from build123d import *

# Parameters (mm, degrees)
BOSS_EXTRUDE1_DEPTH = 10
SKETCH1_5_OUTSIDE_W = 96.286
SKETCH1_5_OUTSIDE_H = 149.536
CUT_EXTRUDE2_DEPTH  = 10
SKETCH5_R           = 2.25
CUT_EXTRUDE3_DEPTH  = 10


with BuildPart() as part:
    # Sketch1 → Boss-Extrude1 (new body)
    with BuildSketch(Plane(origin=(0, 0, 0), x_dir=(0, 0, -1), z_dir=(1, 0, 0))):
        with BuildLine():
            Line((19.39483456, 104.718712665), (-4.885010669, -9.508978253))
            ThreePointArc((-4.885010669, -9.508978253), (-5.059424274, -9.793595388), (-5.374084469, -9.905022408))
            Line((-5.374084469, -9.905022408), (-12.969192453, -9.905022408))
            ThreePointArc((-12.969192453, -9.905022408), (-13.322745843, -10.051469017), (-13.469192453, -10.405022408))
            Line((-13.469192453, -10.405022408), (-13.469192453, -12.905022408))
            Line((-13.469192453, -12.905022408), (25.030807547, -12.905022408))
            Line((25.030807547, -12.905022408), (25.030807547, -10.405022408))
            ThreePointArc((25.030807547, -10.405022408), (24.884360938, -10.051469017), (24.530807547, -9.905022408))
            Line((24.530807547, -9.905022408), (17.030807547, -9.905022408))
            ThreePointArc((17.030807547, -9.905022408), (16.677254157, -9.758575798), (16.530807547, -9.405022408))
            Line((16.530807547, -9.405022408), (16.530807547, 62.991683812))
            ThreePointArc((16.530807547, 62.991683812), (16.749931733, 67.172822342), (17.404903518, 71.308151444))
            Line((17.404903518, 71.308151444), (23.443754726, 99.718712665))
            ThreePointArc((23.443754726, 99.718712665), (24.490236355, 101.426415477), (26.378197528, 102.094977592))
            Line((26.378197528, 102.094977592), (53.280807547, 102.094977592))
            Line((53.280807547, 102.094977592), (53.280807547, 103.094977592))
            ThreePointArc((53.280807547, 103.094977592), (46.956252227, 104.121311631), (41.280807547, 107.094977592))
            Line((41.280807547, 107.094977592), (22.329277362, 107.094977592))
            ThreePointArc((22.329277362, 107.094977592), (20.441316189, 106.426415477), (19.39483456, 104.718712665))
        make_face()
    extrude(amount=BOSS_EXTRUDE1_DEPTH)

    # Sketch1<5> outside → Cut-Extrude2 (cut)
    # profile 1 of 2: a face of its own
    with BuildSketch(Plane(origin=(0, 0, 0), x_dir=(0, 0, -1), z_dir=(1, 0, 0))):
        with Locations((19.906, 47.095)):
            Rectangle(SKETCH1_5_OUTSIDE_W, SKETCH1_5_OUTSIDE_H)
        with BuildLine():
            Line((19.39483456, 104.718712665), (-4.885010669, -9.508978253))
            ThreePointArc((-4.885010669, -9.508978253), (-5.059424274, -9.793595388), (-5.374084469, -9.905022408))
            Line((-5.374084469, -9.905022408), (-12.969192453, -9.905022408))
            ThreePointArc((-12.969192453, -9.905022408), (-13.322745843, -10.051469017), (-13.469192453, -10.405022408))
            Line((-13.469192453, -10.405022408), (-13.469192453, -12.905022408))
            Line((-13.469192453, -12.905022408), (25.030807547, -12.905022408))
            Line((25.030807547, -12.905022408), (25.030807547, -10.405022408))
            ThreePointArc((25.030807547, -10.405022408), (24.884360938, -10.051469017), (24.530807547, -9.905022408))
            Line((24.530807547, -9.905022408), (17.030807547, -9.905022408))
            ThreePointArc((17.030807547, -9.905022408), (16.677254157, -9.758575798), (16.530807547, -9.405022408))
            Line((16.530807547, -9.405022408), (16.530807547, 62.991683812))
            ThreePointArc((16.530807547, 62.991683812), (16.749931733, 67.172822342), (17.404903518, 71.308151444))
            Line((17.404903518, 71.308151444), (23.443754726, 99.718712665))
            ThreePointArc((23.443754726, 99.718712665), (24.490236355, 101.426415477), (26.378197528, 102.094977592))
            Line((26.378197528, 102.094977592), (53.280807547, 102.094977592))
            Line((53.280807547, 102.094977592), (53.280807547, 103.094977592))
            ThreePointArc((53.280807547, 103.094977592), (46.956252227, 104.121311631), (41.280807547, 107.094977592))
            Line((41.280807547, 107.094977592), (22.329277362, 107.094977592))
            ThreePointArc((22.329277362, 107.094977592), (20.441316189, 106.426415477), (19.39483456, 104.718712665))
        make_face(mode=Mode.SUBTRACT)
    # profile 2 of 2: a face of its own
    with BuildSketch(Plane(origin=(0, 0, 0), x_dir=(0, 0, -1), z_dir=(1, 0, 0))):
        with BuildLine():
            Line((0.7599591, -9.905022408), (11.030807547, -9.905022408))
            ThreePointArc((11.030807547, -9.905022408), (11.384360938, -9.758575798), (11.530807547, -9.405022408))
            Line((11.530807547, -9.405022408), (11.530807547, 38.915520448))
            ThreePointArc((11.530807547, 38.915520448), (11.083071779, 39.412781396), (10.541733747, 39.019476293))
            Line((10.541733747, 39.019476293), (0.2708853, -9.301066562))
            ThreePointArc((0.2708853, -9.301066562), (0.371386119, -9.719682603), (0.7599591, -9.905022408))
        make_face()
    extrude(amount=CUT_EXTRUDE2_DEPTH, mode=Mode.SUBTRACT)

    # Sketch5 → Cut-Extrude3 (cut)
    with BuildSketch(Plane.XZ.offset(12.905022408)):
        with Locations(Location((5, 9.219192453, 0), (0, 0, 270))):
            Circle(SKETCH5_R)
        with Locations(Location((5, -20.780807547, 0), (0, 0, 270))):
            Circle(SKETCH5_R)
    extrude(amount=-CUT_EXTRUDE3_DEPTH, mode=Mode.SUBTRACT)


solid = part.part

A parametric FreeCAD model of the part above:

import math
import FreeCAD as App
import Part
import Sketcher
from FreeCAD import Vector
Q = App.Units.Quantity


def add_polygon(sketch, points):
    """Adds a closed chain of lines whose ends are joined by coincident constraints."""
    first, n = sketch.GeometryCount, len(points)
    for a, b in zip(points, points[1:] + points[:1]):
        sketch.addGeometry(Part.LineSegment(App.Vector(*a, 0), App.Vector(*b, 0)), False)
    for i in range(n):
        sketch.addConstraint(Sketcher.Constraint("Coincident", first + i, 2, first + (i + 1) % n, 1))

doc = App.newDocument("Part")
params = doc.addObject("Spreadsheet::Sheet", "Params")
for row, (alias, value) in enumerate([
    ("sketch1_radius", "40 mm"),
    ("sketch1_radius2", "3 mm"),
    ("sketch1_radius3", "20 mm"),
    ("sketch1_radius4", "0.5 mm"),
    ("sketch1_width", "1 mm"),
    ("pad1_length", "10 mm"),
    ("sketch2_radius", "3 mm"),
    ("sketch2_radius2", "20 mm"),
    ("sketch2_radius3", "40 mm"),
    ("sketch2_radius4", "0.5 mm"),
    ("sketch2_width", "1 mm"),
    ("pocket1_length", "10 mm"),
    ("sketch3_diameter", "4.5 mm"),
    ("pocket2_length", "10 mm"),
], start=1):
    params.set(f"A{row}", alias)
    params.set(f"B{row}", "=" + value)
    params.setAlias(f"B{row}", alias)

body = doc.addObject("PartDesign::Body", "Body")

sketch1 = body.newObject("Sketcher::SketchObject", "Sketch")
sketch1.AttachmentSupport = (doc.getObject("YZ_Plane"), [""])
sketch1.MapMode = "FlatFace"
sketch1.addGeometry(Part.LineSegment(Vector(104.718713, -19.394835, 0), Vector(-9.508978, 4.885011, 0)), False)
sketch1.addGeometry(Part.ArcOfCircle(Part.Circle(Vector(-9.405022, 5.374084, 0), Vector(0, 0, 1), 0.5), math.radians(-180), math.radians(-102)), False)
sketch1.addGeometry(Part.LineSegment(Vector(-9.905022, 5.374084, 0), Vector(-9.905022, 12.969192, 0)), False)
sketch1.addGeometry(Part.ArcOfCircle(Part.Circle(Vector(-10.405022, 12.969192, 0), Vector(0, 0, 1), 0.5), math.radians(0), math.radians(90)), False)
sketch1.addGeometry(Part.LineSegment(Vector(-10.405022, 13.469192, 0), Vector(-12.905022, 13.469192, 0)), False)
sketch1.addGeometry(Part.LineSegment(Vector(-12.905022, 13.469192, 0), Vector(-12.905022, -25.030808, 0)), False)
sketch1.addGeometry(Part.LineSegment(Vector(-12.905022, -25.030808, 0), Vector(-10.405022, -25.030808, 0)), False)
sketch1.addGeometry(Part.ArcOfCircle(Part.Circle(Vector(-10.405022, -24.530808, 0), Vector(0, 0, 1), 0.5), math.radians(-90), math.radians(0)), False)
sketch1.addGeometry(Part.LineSegment(Vector(-9.905022, -24.530808, 0), Vector(-9.905022, -17.030808, 0)), False)
sketch1.addGeometry(Part.ArcOfCircle(Part.Circle(Vector(-9.405022, -17.030808, 0), Vector(0, 0, 1), 0.5), math.radians(90), math.radians(180)), False)
sketch1.addGeometry(Part.LineSegment(Vector(-9.405022, -16.530808, 0), Vector(62.991684, -16.530808, 0)), False)
sketch1.addGeometry(Part.ArcOfCircle(Part.Circle(Vector(62.991684, -56.530808, 0), Vector(0, 0, 1), 40), math.radians(78), math.radians(90)), False)
sketch1.addGeometry(Part.LineSegment(Vector(71.308151, -17.404904, 0), Vector(99.718713, -23.443755, 0)), False)
sketch1.addGeometry(Part.ArcOfCircle(Part.Circle(Vector(99.094978, -26.378198, 0), Vector(0, 0, 1), 3), math.radians(0), math.radians(78)), False)
sketch1.addGeometry(Part.LineSegment(Vector(102.094978, -26.378198, 0), Vector(102.094978, -53.280808, 0)), False)
sketch1.addGeometry(Part.LineSegment(Vector(102.094978, -53.280808, 0), Vector(103.094978, -53.280808, 0)), False)
sketch1.addGeometry(Part.ArcOfCircle(Part.Circle(Vector(123.094978, -53.280808, 0), Vector(0, 0, 1), 20), math.radians(143.130102), math.radians(180)), False)
sketch1.addGeometry(Part.LineSegment(Vector(107.094978, -41.280808, 0), Vector(107.094978, -22.329277, 0)), False)
sketch1.addGeometry(Part.ArcOfCircle(Part.Circle(Vector(104.094978, -22.329277, 0), Vector(0, 0, 1), 3), math.radians(0), math.radians(78)), False)
sketch1.addConstraint(Sketcher.Constraint("Tangent", 0, 2, 1, 2))
sketch1.addConstraint(Sketcher.Constraint("Tangent", 1, 1, 2, 1))
sketch1.addConstraint(Sketcher.Constraint("Tangent", 2, 2, 3, 1))
sketch1.addConstraint(Sketcher.Constraint("Tangent", 3, 2, 4, 1))
sketch1.addConstraint(Sketcher.Constraint("Coincident", 4, 2, 5, 1))
sketch1.addConstraint(Sketcher.Constraint("Coincident", 5, 2, 6, 1))
sketch1.addConstraint(Sketcher.Constraint("Tangent", 6, 2, 7, 1))
sketch1.addConstraint(Sketcher.Constraint("Tangent", 7, 2, 8, 1))
sketch1.addConstraint(Sketcher.Constraint("Tangent", 8, 2, 9, 2))
sketch1.addConstraint(Sketcher.Constraint("Tangent", 9, 1, 10, 1))
sketch1.addConstraint(Sketcher.Constraint("Tangent", 10, 2, 11, 2))
sketch1.addConstraint(Sketcher.Constraint("Tangent", 11, 1, 12, 1))
sketch1.addConstraint(Sketcher.Constraint("Tangent", 12, 2, 13, 2))
sketch1.addConstraint(Sketcher.Constraint("Tangent", 13, 1, 14, 1))
sketch1.addConstraint(Sketcher.Constraint("Coincident", 14, 2, 15, 1))
sketch1.addConstraint(Sketcher.Constraint("Coincident", 15, 2, 16, 2))
sketch1.addConstraint(Sketcher.Constraint("Coincident", 16, 1, 17, 1))
sketch1.addConstraint(Sketcher.Constraint("Tangent", 17, 2, 18, 1))
sketch1.addConstraint(Sketcher.Constraint("Tangent", 18, 2, 0, 1))
sketch1.addConstraint(Sketcher.Constraint("Vertical", 2))
sketch1.addConstraint(Sketcher.Constraint("Horizontal", 4))
sketch1.addConstraint(Sketcher.Constraint("Vertical", 5))
sketch1.addConstraint(Sketcher.Constraint("Horizontal", 6))
sketch1.addConstraint(Sketcher.Constraint("Vertical", 8))
sketch1.addConstraint(Sketcher.Constraint("Horizontal", 10))
sketch1.addConstraint(Sketcher.Constraint("Vertical", 14))
sketch1.addConstraint(Sketcher.Constraint("Horizontal", 15))
sketch1.addConstraint(Sketcher.Constraint("Vertical", 17))
sketch1.addConstraint(Sketcher.Constraint("Equal", 1, 3))
sketch1.addConstraint(Sketcher.Constraint("Equal", 3, 7))
sketch1.addConstraint(Sketcher.Constraint("Equal", 7, 9))
sketch1.addConstraint(Sketcher.Constraint("Equal", 13, 18))
sketch1.addConstraint(Sketcher.Constraint("Parallel", 0, 12))
sketch1.addConstraint(Sketcher.Constraint("Horizontal", 16, 3, 14, 2))
sketch1.addConstraint(Sketcher.Constraint("Vertical", 3, 3, 7, 3))
sketch1.addConstraint(Sketcher.Constraint("Radius", 11, 40.0))
sketch1.addConstraint(Sketcher.Constraint("Radius", 13, 3.0))
sketch1.addConstraint(Sketcher.Constraint("Radius", 16, 20.0))
sketch1.addConstraint(Sketcher.Constraint("Radius", 1, 0.5))
sketch1.addConstraint(Sketcher.Constraint("DistanceX", 15, 1, 15, 2, 1.0))
sketch1.addConstraint(Sketcher.Constraint("Angle", 0, Q("168 deg")))
sketch1.addConstraint(Sketcher.Constraint("DistanceX", 4, 2, 4, 1, 2.5))
sketch1.addConstraint(Sketcher.Constraint("DistanceY", 5, 2, 5, 1, 38.5))
sketch1.addConstraint(Sketcher.Constraint("DistanceY", 8, 1, 8, 2, 7.5))
sketch1.addConstraint(Sketcher.Constraint("DistanceX", 13, 3, 18, 3, 5.0))
sketch1.addConstraint(Sketcher.Constraint("DistanceX", 9, 3, 13, 3, 108.5))
sketch1.addConstraint(Sketcher.Constraint("DistanceY", 11, 3, 16, 3, 3.25))
sketch1.addConstraint(Sketcher.Constraint("DistanceY", 14, 2, 14, 1, 26.90261))
sketch1.addConstraint(Sketcher.Constraint("DistanceY", 17, 1, 17, 2, 18.95153))
sketch1.addConstraint(Sketcher.Constraint("DistanceX", 0, 2, -1, 1, 9.508978))
sketch1.addConstraint(Sketcher.Constraint("DistanceY", -1, 1, 0, 2, 4.885011))
sketch1.setExpression("Constraints[35]", "Params.sketch1_radius")
sketch1.setExpression("Constraints[36]", "Params.sketch1_radius2")
sketch1.setExpression("Constraints[37]", "Params.sketch1_radius3")
sketch1.setExpression("Constraints[38]", "Params.sketch1_radius4")
sketch1.setExpression("Constraints[39]", "Params.sketch1_width")
pad1 = body.newObject("PartDesign::Pad", "Pad")
pad1.Profile = sketch1
pad1.setExpression("Length", "Params.pad1_length")

sketch2 = body.newObject("Sketcher::SketchObject", "Sketch001")
sketch2.AttachmentSupport = (doc.getObject("YZ_Plane"), [""])
sketch2.MapMode = "FlatFace"
add_polygon(sketch2, [(121.863, 28.237), (-27.673, 28.237), (-27.673, -68.049), (121.863, -68.049)])
sketch2.addGeometry(Part.LineSegment(Vector(-9.508978, 4.885011, 0), Vector(104.718713, -19.394835, 0)), False)
sketch2.addGeometry(Part.ArcOfCircle(Part.Circle(Vector(104.094978, -22.329277, 0), Vector(0, 0, 1), 3), math.radians(0), math.radians(78)), False)
sketch2.addGeometry(Part.LineSegment(Vector(107.094978, -22.329277, 0), Vector(107.094978, -41.280808, 0)), False)
sketch2.addGeometry(Part.ArcOfCircle(Part.Circle(Vector(123.094978, -53.280808, 0), Vector(0, 0, 1), 20), math.radians(143.130102), math.radians(180)), False)
sketch2.addGeometry(Part.LineSegment(Vector(103.094978, -53.280808, 0), Vector(102.094978, -53.280808, 0)), False)
sketch2.addGeometry(Part.LineSegment(Vector(102.094978, -53.280808, 0), Vector(102.094978, -26.378198, 0)), False)
sketch2.addGeometry(Part.ArcOfCircle(Part.Circle(Vector(99.094978, -26.378198, 0), Vector(0, 0, 1), 3), math.radians(0), math.radians(78)), False)
sketch2.addGeometry(Part.LineSegment(Vector(99.718713, -23.443755, 0), Vector(71.308151, -17.404904, 0)), False)
sketch2.addGeometry(Part.ArcOfCircle(Part.Circle(Vector(62.991684, -56.530808, 0), Vector(0, 0, 1), 40), math.radians(78), math.radians(90)), False)
sketch2.addGeometry(Part.LineSegment(Vector(62.991684, -16.530808, 0), Vector(-9.405022, -16.530808, 0)), False)
sketch2.addGeometry(Part.ArcOfCircle(Part.Circle(Vector(-9.405022, -17.030808, 0), Vector(0, 0, 1), 0.5), math.radians(90), math.radians(180)), False)
sketch2.addGeometry(Part.LineSegment(Vector(-9.905022, -17.030808, 0), Vector(-9.905022, -24.530808, 0)), False)
sketch2.addGeometry(Part.ArcOfCircle(Part.Circle(Vector(-10.405022, -24.530808, 0), Vector(0, 0, 1), 0.5), math.radians(-90), math.radians(0)), False)
sketch2.addGeometry(Part.LineSegment(Vector(-10.405022, -25.030808, 0), Vector(-12.905022, -25.030808, 0)), False)
sketch2.addGeometry(Part.LineSegment(Vector(-12.905022, -25.030808, 0), Vector(-12.905022, 13.469192, 0)), False)
sketch2.addGeometry(Part.LineSegment(Vector(-12.905022, 13.469192, 0), Vector(-10.405022, 13.469192, 0)), False)
sketch2.addGeometry(Part.ArcOfCircle(Part.Circle(Vector(-10.405022, 12.969192, 0), Vector(0, 0, 1), 0.5), math.radians(0), math.radians(90)), False)
sketch2.addGeometry(Part.LineSegment(Vector(-9.905022, 12.969192, 0), Vector(-9.905022, 5.374084, 0)), False)
sketch2.addGeometry(Part.ArcOfCircle(Part.Circle(Vector(-9.405022, 5.374084, 0), Vector(0, 0, 1), 0.5), math.radians(-180), math.radians(-102)), False)
sketch2.addGeometry(Part.LineSegment(Vector(-9.905022, -0.759959, 0), Vector(-9.905022, -11.030808, 0)), False)
sketch2.addGeometry(Part.ArcOfCircle(Part.Circle(Vector(-9.405022, -11.030808, 0), Vector(0, 0, 1), 0.5), math.radians(180), math.radians(270)), False)
sketch2.addGeometry(Part.LineSegment(Vector(-9.405022, -11.530808, 0), Vector(38.91552, -11.530808, 0)), False)
sketch2.addGeometry(Part.ArcOfCircle(Part.Circle(Vector(38.91552, -11.030808, 0), Vector(0, 0, 1), 0.5), math.radians(-90), math.radians(78)), False)
sketch2.addGeometry(Part.LineSegment(Vector(39.019476, -10.541734, 0), Vector(-9.301067, -0.270885, 0)), False)
sketch2.addGeometry(Part.ArcOfCircle(Part.Circle(Vector(-9.405022, -0.759959, 0), Vector(0, 0, 1), 0.5), math.radians(78), math.radians(180)), False)
sketch2.addConstraint(Sketcher.Constraint("Tangent", 4, 2, 5, 2))
sketch2.addConstraint(Sketcher.Constraint("Tangent", 5, 1, 6, 1))
sketch2.addConstraint(Sketcher.Constraint("Coincident", 6, 2, 7, 1))
sketch2.addConstraint(Sketcher.Constraint("Coincident", 7, 2, 8, 1))
sketch2.addConstraint(Sketcher.Constraint("Coincident", 8, 2, 9, 1))
sketch2.addConstraint(Sketcher.Constraint("Tangent", 9, 2, 10, 1))
sketch2.addConstraint(Sketcher.Constraint("Tangent", 10, 2, 11, 1))
sketch2.addConstraint(Sketcher.Constraint("Tangent", 11, 2, 12, 1))
sketch2.addConstraint(Sketcher.Constraint("Tangent", 12, 2, 13, 1))
sketch2.addConstraint(Sketcher.Constraint("Tangent", 13, 2, 14, 1))
sketch2.addConstraint(Sketcher.Constraint("Tangent", 14, 2, 15, 1))
sketch2.addConstraint(Sketcher.Constraint("Tangent", 15, 2, 16, 2))
sketch2.addConstraint(Sketcher.Constraint("Tangent", 16, 1, 17, 1))
sketch2.addConstraint(Sketcher.Constraint("Coincident", 17, 2, 18, 1))
sketch2.addConstraint(Sketcher.Constraint("Coincident", 18, 2, 19, 1))
sketch2.addConstraint(Sketcher.Constraint("Tangent", 19, 2, 20, 2))
sketch2.addConstraint(Sketcher.Constraint("Tangent", 20, 1, 21, 1))
sketch2.addConstraint(Sketcher.Constraint("Tangent", 21, 2, 22, 1))
sketch2.addConstraint(Sketcher.Constraint("Tangent", 22, 2, 4, 1))
sketch2.addConstraint(Sketcher.Constraint("Tangent", 23, 2, 24, 1))
sketch2.addConstraint(Sketcher.Constraint("Tangent", 24, 2, 25, 1))
sketch2.addConstraint(Sketcher.Constraint("Tangent", 25, 2, 26, 1))
sketch2.addConstraint(Sketcher.Constraint("Tangent", 26, 2, 27, 1))
sketch2.addConstraint(Sketcher.Constraint("Tangent", 27, 2, 28, 1))
sketch2.addConstraint(Sketcher.Constraint("Tangent", 28, 2, 23, 1))
sketch2.addConstraint(Sketcher.Constraint("Horizontal", 0))
sketch2.addConstraint(Sketcher.Constraint("Vertical", 1))
sketch2.addConstraint(Sketcher.Constraint("Horizontal", 2))
sketch2.addConstraint(Sketcher.Constraint("Vertical", 3))
sketch2.addConstraint(Sketcher.Constraint("Vertical", 6))
sketch2.addConstraint(Sketcher.Constraint("Horizontal", 8))
sketch2.addConstraint(Sketcher.Constraint("Vertical", 9))
sketch2.addConstraint(Sketcher.Constraint("Horizontal", 13))
sketch2.addConstraint(Sketcher.Constraint("Vertical", 15))
sketch2.addConstraint(Sketcher.Constraint("Horizontal", 17))
sketch2.addConstraint(Sketcher.Constraint("Vertical", 18))
sketch2.addConstraint(Sketcher.Constraint("Horizontal", 19))
sketch2.addConstraint(Sketcher.Constraint("Vertical", 21))
sketch2.addConstraint(Sketcher.Constraint("Vertical", 23))
sketch2.addConstraint(Sketcher.Constraint("Horizontal", 25))
sketch2.addConstraint(Sketcher.Constraint("Equal", 5, 10))
sketch2.addConstraint(Sketcher.Constraint("Equal", 14, 16))
sketch2.addConstraint(Sketcher.Constraint("Equal", 16, 20))
sketch2.addConstraint(Sketcher.Constraint("Equal", 20, 22))
sketch2.addConstraint(Sketcher.Constraint("Equal", 22, 24))
sketch2.addConstraint(Sketcher.Constraint("Equal", 24, 26))
sketch2.addConstraint(Sketcher.Constraint("Equal", 26, 28))
sketch2.addConstraint(Sketcher.Constraint("Parallel", 4, 11))
sketch2.addConstraint(Sketcher.Constraint("Parallel", 11, 27))
sketch2.addConstraint(Sketcher.Constraint("Vertical", 16, 3, 20, 3))
sketch2.addConstraint(Sketcher.Constraint("Vertical", 22, 3, 24, 3))
sketch2.addConstraint(Sketcher.Constraint("Radius", 5, 3.0))
sketch2.addConstraint(Sketcher.Constraint("Radius", 7, 20.0))
sketch2.addConstraint(Sketcher.Constraint("Radius", 12, 40.0))
sketch2.addConstraint(Sketcher.Constraint("Radius", 14, 0.5))
sketch2.addConstraint(Sketcher.Constraint("DistanceX", 8, 2, 8, 1, 1.0))
sketch2.addConstraint(Sketcher.Constraint("Angle", 4, Q("-12 deg")))
sketch2.addConstraint(Sketcher.Constraint("DistanceX", 17, 2, 17, 1, 2.5))
sketch2.addConstraint(Sketcher.Constraint("DistanceY", 15, 2, 15, 1, 7.5))
sketch2.addConstraint(Sketcher.Constraint("DistanceY", 18, 1, 18, 2, 38.5))
sketch2.addConstraint(Sketcher.Constraint("DistanceX", 5, 3, 7, 3, 19.0))
sketch2.addConstraint(Sketcher.Constraint("DistanceY", 14, 3, 24, 3, 6.0))
sketch2.addConstraint(Sketcher.Constraint("DistanceY", 7, 2, 6, 2, 12.0))
sketch2.addConstraint(Sketcher.Constraint("DistanceX", 14, 3, 10, 3, 108.5))
sketch2.addConstraint(Sketcher.Constraint("DistanceX", 0, 2, 0, 1, 149.536))
sketch2.addConstraint(Sketcher.Constraint("DistanceY", 1, 2, 1, 1, 96.286))
sketch2.addConstraint(Sketcher.Constraint("DistanceY", 12, 3, 7, 3, 3.25))
sketch2.addConstraint(Sketcher.Constraint("DistanceX", 0, 2, -1, 1, 27.673))
sketch2.addConstraint(Sketcher.Constraint("DistanceY", -1, 1, 0, 2, 28.237))
sketch2.addConstraint(Sketcher.Constraint("DistanceY", 6, 2, 6, 1, 18.95153))
sketch2.addConstraint(Sketcher.Constraint("DistanceY", 9, 1, 9, 2, 26.90261))
sketch2.addConstraint(Sketcher.Constraint("DistanceY", 23, 2, 23, 1, 10.270848))
sketch2.addConstraint(Sketcher.Constraint("DistanceX", -1, 1, 26, 3, 38.91552))
sketch2.addConstraint(Sketcher.Constraint("DistanceY", 28, 3, -1, 1, 0.759959))
sketch2.setExpression("Constraints[55]", "Params.sketch2_radius")
sketch2.setExpression("Constraints[56]", "Params.sketch2_radius2")
sketch2.setExpression("Constraints[57]", "Params.sketch2_radius3")
sketch2.setExpression("Constraints[58]", "Params.sketch2_radius4")
sketch2.setExpression("Constraints[59]", "Params.sketch2_width")
pocket1 = body.newObject("PartDesign::Pocket", "Pocket")
pocket1.Profile = sketch2
pocket1.setExpression("Length", "Params.pocket1_length")
pocket1.Reversed = True

sketch3 = body.newObject("Sketcher::SketchObject", "Sketch002")
sketch3.AttachmentSupport = (doc.getObject("XZ_Plane"), [""])
sketch3.MapMode = "FlatFace"
sketch3.AttachmentOffset = App.Placement(Vector(0, 0, 12.905022), App.Rotation())
sketch3.addGeometry(Part.Circle(Vector(5, 9.219192, 0), Vector(0, 0, 1), 2.25), False)
sketch3.addGeometry(Part.Circle(Vector(5, -20.780808, 0), Vector(0, 0, 1), 2.25), False)
sketch3.addConstraint(Sketcher.Constraint("Equal", 0, 1))
sketch3.addConstraint(Sketcher.Constraint("Vertical", 0, 3, 1, 3))
sketch3.addConstraint(Sketcher.Constraint("Diameter", 0, 4.5))
sketch3.addConstraint(Sketcher.Constraint("DistanceX", -1, 1, 0, 3, 5.0))
sketch3.addConstraint(Sketcher.Constraint("DistanceY", 1, 3, 0, 3, 30.0))
sketch3.addConstraint(Sketcher.Constraint("DistanceY", -1, 1, 0, 3, 9.219192))
sketch3.setExpression("Constraints[2]", "Params.sketch3_diameter")
pocket2 = body.newObject("PartDesign::Pocket", "Pocket001")
pocket2.Profile = sketch3
pocket2.setExpression("Length", "Params.pocket2_length")

doc.recompute()
